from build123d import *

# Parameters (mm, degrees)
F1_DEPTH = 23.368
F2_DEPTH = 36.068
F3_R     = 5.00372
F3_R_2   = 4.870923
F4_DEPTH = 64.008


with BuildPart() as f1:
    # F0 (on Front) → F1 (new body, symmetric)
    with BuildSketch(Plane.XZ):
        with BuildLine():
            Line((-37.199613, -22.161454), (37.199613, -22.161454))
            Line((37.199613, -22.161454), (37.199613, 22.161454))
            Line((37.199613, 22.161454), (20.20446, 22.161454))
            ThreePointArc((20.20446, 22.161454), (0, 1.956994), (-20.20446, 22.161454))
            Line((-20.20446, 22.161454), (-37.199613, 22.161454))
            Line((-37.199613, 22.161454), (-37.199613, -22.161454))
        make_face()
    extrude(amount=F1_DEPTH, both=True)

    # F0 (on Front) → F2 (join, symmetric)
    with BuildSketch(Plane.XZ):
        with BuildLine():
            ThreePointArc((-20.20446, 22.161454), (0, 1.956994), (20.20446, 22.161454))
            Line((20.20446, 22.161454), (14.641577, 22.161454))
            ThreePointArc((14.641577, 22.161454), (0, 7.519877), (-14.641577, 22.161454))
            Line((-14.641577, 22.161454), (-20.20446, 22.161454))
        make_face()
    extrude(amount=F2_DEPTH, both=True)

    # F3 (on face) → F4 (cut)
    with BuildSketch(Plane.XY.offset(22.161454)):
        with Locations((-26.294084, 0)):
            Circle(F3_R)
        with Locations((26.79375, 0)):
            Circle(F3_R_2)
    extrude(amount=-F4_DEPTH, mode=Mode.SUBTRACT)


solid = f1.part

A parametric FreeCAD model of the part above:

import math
import FreeCAD as App
import Part
import Sketcher

V = App.Vector
Q = App.Units.Quantity

doc = App.newDocument("Part")
body = doc.addObject("PartDesign::Body", "Body")

sketch1 = doc.addObject("Sketcher::SketchObject", "Sketch")
body.addObject(sketch1)
sketch1.AttachmentSupport = (doc.XZ_Plane, [""])
sketch1.MapMode = "FlatFace"
sketch1.addGeometry([
    Part.LineSegment(V(-37, -22, 0), V(37, -22, 0)),
    Part.LineSegment(V(37, -22, 0), V(37, 22, 0)),
    Part.LineSegment(V(37, 22, 0), V(20, 22, 0)),
    Part.ArcOfCircle(Part.Circle(V(0, 22, 0), V(0, 0, 1), 20), math.radians(180), math.radians(360)),
    Part.LineSegment(V(-20, 22, 0), V(-37, 22, 0)),
    Part.LineSegment(V(-37, 22, 0), V(-37, -22, 0)),
], False)
sketch1.addConstraint([
    Sketcher.Constraint("Coincident", 0, 2, 1, 1),
    Sketcher.Constraint("Coincident", 1, 2, 2, 1),
    Sketcher.Constraint("Coincident", 2, 2, 3, 2),
    Sketcher.Constraint("Coincident", 3, 1, 4, 1),
    Sketcher.Constraint("Coincident", 4, 2, 5, 1),
    Sketcher.Constraint("Coincident", 5, 2, 0, 1),
    Sketcher.Constraint("Horizontal", 0),
    Sketcher.Constraint("Vertical", 1),
    Sketcher.Constraint("Horizontal", 2),
    Sketcher.Constraint("Horizontal", 4),
    Sketcher.Constraint("Vertical", 5),
    Sketcher.Constraint("Symmetric", 0, 2, 4, 2, -1, 1),
    Sketcher.Constraint("Symmetric", 2, 2, 3, 1, -2),
    Sketcher.Constraint("Horizontal", 3, 3, 1, 2),
    Sketcher.Constraint("Radius", 3, 20.20446),
    Sketcher.Constraint("DistanceX", 0, 1, 0, 2, 74.399226),
    Sketcher.Constraint("DistanceY", 1, 1, 1, 2, 44.322908),
])
pad1 = doc.addObject("PartDesign::Pad", "Pad")
body.addObject(pad1)
pad1.Profile = sketch1
pad1.Length = Q("1.84 in")
pad1.Midplane = True

sketch2 = doc.addObject("Sketcher::SketchObject", "Sketch001")
body.addObject(sketch2)
sketch2.AttachmentSupport = (doc.XZ_Plane, [""])
sketch2.MapMode = "FlatFace"
sketch2.addGeometry([
    Part.ArcOfCircle(Part.Circle(V(0, 22, 0), V(0, 0, 1), 20), math.radians(180), math.radians(360)),
    Part.LineSegment(V(20, 22, 0), V(15, 22, 0)),
    Part.ArcOfCircle(Part.Circle(V(0, 22, 0), V(0, 0, 1), 15), math.radians(180), math.radians(360)),
    Part.LineSegment(V(-15, 22, 0), V(-20, 22, 0)),
], False)
sketch2.addConstraint([
    Sketcher.Constraint("Coincident", 0, 2, 1, 1),
    Sketcher.Constraint("Coincident", 1, 2, 2, 2),
    Sketcher.Constraint("Coincident", 2, 1, 3, 1),
    Sketcher.Constraint("Coincident", 3, 2, 0, 1),
    Sketcher.Constraint("Horizontal", 1),
    Sketcher.Constraint("Horizontal", 3),
    Sketcher.Constraint("Coincident", 2, 3, 0, 3),
    Sketcher.Constraint("Symmetric", 1, 2, 2, 1, -2),
    Sketcher.Constraint("Horizontal", 2, 3, 0, 2),
    Sketcher.Constraint("Radius", 0, 20.20446),
    Sketcher.Constraint("Radius", 2, 14.641577),
    Sketcher.Constraint("DistanceY", -1, 1, 0, 3, 22.161454),
])
pad2 = doc.addObject("PartDesign::Pad", "Pad001")
body.addObject(pad2)
pad2.Profile = sketch2
pad2.Length = Q("2.84 in")
pad2.Midplane = True

sketch3 = doc.addObject("Sketcher::SketchObject", "Sketch002")
body.addObject(sketch3)
sketch3.AttachmentSupport = (doc.XY_Plane, [""])
sketch3.MapMode = "FlatFace"
sketch3.AttachmentOffset = App.Placement(V(0, 0, 22.161454), App.Rotation())
sketch3.addGeometry([
    Part.Circle(V(-26.3, 0, 0), V(0, 0, 1), 5),
    Part.Circle(V(26.8, 0, 0), V(0, 0, 1), 4.9),
], False)
sketch3.addConstraint([
    Sketcher.Constraint("PointOnObject", 0, 3, -1),
    Sketcher.Constraint("PointOnObject", 1, 3, -1),
    Sketcher.Constraint("Diameter", 0, 10.00744),
    Sketcher.Constraint("Diameter", 1, 9.741846),
    Sketcher.Constraint("DistanceX", 0, 3, -1, 1, Q("1.0352002 in")),
    Sketcher.Constraint("DistanceX", -1, 1, 1, 3, 26.79375),
])
pocket1 = doc.addObject("PartDesign::Pocket", "Pocket")
body.addObject(pocket1)
pocket1.Profile = sketch3
pocket1.Length = Q("2.52 in")

doc.recompute()
